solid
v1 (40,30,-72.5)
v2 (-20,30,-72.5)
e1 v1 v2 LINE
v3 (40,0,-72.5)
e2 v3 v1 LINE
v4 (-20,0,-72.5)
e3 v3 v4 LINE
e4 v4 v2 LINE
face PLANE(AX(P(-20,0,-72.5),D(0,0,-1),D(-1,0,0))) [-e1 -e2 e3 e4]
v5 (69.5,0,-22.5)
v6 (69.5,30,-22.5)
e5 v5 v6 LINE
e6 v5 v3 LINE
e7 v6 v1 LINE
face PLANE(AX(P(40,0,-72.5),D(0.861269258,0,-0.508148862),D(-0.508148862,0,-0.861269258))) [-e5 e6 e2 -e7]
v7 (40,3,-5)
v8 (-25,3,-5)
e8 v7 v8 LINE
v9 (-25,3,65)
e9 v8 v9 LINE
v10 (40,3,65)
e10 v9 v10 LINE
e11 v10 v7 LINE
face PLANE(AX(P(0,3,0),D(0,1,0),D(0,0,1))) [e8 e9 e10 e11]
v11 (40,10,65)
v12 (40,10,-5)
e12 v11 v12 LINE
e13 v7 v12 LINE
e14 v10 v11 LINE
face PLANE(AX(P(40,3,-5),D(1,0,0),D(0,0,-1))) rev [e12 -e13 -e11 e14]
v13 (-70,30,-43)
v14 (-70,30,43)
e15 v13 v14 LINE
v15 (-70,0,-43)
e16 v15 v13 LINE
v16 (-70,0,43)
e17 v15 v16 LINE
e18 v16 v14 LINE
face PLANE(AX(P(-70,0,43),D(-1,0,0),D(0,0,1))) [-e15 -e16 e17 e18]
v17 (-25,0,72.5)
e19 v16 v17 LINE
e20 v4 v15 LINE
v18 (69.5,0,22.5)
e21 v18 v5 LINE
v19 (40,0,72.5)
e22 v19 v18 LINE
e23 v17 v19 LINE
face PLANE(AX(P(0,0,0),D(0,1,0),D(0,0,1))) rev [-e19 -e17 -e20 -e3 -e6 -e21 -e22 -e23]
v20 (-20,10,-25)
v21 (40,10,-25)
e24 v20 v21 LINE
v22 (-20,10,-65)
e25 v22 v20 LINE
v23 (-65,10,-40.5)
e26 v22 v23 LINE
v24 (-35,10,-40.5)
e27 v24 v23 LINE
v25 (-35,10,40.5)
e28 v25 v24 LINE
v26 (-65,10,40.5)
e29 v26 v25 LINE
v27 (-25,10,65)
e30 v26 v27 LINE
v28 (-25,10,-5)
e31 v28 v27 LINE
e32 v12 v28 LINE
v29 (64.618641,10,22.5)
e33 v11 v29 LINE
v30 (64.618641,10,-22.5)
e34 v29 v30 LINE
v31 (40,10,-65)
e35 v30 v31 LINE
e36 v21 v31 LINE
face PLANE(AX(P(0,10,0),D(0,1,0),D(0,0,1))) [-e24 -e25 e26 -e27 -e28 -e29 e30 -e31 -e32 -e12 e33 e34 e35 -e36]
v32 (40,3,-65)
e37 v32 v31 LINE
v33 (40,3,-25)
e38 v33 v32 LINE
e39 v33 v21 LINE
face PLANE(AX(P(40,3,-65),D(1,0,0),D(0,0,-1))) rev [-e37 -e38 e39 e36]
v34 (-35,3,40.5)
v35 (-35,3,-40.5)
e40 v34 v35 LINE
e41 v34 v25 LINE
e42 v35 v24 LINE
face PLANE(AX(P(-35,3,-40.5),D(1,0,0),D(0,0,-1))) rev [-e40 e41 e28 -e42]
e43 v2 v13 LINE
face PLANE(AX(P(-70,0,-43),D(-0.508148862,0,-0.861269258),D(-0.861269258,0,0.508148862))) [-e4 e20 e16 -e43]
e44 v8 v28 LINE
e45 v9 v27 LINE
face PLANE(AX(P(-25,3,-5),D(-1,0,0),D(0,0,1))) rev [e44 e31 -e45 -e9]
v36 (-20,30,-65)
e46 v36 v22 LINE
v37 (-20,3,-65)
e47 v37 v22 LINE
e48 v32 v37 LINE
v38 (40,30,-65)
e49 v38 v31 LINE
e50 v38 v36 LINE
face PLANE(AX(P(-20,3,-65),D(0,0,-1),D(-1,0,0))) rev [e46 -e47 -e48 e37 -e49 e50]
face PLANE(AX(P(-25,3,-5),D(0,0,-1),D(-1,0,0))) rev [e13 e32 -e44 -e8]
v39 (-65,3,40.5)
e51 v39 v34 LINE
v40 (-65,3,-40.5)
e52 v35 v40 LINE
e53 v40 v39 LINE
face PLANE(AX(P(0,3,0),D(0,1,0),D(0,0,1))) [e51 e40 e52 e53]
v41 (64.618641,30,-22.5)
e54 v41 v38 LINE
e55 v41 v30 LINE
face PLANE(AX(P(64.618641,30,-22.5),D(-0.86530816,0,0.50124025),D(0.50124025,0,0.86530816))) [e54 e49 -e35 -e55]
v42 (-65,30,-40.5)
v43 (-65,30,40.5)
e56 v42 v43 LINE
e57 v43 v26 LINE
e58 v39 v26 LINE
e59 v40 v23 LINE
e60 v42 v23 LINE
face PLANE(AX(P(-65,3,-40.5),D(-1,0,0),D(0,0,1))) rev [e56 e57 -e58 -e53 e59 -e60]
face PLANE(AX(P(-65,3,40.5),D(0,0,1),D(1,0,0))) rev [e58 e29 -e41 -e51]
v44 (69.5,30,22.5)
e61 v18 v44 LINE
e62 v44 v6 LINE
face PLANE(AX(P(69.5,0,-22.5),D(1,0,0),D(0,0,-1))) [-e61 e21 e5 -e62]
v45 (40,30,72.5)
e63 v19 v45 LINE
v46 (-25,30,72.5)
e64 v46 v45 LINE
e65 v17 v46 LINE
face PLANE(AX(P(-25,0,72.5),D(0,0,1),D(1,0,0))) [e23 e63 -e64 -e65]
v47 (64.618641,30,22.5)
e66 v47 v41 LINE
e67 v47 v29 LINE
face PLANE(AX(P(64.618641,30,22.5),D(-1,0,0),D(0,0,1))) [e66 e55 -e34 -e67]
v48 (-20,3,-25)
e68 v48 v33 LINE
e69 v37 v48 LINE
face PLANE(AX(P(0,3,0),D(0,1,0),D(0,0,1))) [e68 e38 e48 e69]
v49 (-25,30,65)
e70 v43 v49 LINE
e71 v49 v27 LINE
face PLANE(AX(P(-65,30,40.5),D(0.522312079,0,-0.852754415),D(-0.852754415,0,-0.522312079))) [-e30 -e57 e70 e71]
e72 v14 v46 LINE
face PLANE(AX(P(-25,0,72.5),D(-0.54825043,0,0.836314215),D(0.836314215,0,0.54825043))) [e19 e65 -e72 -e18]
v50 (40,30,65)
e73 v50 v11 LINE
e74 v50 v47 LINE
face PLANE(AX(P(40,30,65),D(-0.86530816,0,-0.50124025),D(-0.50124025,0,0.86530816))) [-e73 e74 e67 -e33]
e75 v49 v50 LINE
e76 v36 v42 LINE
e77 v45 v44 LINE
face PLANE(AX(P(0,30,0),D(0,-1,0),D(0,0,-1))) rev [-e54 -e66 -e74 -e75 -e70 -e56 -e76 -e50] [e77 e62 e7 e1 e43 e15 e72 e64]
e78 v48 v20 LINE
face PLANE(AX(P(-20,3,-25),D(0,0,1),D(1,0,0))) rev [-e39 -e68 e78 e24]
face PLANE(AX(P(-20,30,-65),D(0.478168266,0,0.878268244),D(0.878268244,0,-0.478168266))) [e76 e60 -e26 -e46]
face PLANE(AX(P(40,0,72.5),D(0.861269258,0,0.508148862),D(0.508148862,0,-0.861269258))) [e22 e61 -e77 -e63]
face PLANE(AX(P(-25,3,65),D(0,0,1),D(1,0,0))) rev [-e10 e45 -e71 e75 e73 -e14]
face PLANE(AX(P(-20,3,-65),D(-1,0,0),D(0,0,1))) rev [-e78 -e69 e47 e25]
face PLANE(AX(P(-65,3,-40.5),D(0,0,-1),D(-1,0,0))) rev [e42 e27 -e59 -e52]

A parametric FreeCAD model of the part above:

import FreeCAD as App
import Part
import Sketcher

V = App.Vector
Q = App.Units.Quantity


def add_polygon(sketch, points):
    """Adds a closed chain of lines whose ends are joined by coincident constraints."""
    first, n = sketch.GeometryCount, len(points)
    for a, b in zip(points, points[1:] + points[:1]):
        sketch.addGeometry(Part.LineSegment(App.Vector(*a, 0), App.Vector(*b, 0)), False)
    for i in range(n):
        sketch.addConstraint(Sketcher.Constraint("Coincident", first + i, 2, first + (i + 1) % n, 1))

doc = App.newDocument("Part")
body = doc.addObject("PartDesign::Body", "Body")

# Sketch on XZ plane
sketch1 = body.newObject("Sketcher::SketchObject", "Sketch")
sketch1.AttachmentSupport = (doc.getObject("XZ_Plane"), [""])
sketch1.MapMode = "FlatFace"
sketch1.addGeometry(Part.Circle(V(0, 0, 0), V(0, 0, 1), 85), False)
sketch1.addConstraint([
    Sketcher.Constraint("Coincident", 0, 3, -1, 1),
    Sketcher.Constraint("Diameter", 0, Q("170 mm")),
])
pad1 = body.newObject("PartDesign::Pad", "Pad")
pad1.Profile = sketch1
pad1.Length = 10
pad1.Reversed = True

# Sketch on XZ plane
sketch2 = body.newObject("Sketcher::SketchObject", "Sketch001")
sketch2.AttachmentSupport = (doc.getObject("XZ_Plane"), [""])
sketch2.MapMode = "FlatFace"
sketch2.AttachmentOffset = App.Placement(V(0, 0, -10), App.Rotation())
add_polygon(sketch2, [(-65, -40), (-65, 40), (-35, 40), (-35, -40)])  # lines 0-3
add_polygon(sketch2, [(-20, -65), (-20, -25), (40, -25), (40, -65)])  # lines 4-7
add_polygon(sketch2, [(-25, -5), (-25, 65), (40, 65), (40, -5)])  # lines 8-11
sketch2.addConstraint([
    Sketcher.Constraint("Vertical", 0),
    Sketcher.Constraint("Horizontal", 1),
    Sketcher.Constraint("Vertical", 2),
    Sketcher.Constraint("Horizontal", 3),
    Sketcher.Constraint("Vertical", 4),
    Sketcher.Constraint("Horizontal", 5),
    Sketcher.Constraint("Vertical", 6),
    Sketcher.Constraint("Horizontal", 7),
    Sketcher.Constraint("Vertical", 8),
    Sketcher.Constraint("Horizontal", 9),
    Sketcher.Constraint("Vertical", 10),
    Sketcher.Constraint("Horizontal", 11),
    Sketcher.Constraint("Symmetric", 6, 2, 9, 2, -1),
    Sketcher.Constraint("DistanceX", 1, 1, 1, 2, Q("30 mm")),
    Sketcher.Constraint("DistanceX", 5, 1, 5, 2, Q("60 mm")),
    Sketcher.Constraint("DistanceX", 9, 1, 9, 2, Q("65 mm")),
    Sketcher.Constraint("DistanceY", 0, 1, 0, 2, Q("81 mm")),
    Sketcher.Constraint("DistanceY", 4, 1, 4, 2, Q("40 mm")),
    Sketcher.Constraint("DistanceY", 8, 1, 8, 2, Q("70 mm")),
    Sketcher.Constraint("DistanceX", 0, 2, -1, 1, Q("65 mm")),
    Sketcher.Constraint("DistanceX", 4, 2, -1, 1, Q("20 mm")),
    Sketcher.Constraint("DistanceY", 4, 2, -1, 1, Q("25 mm")),
    Sketcher.Constraint("DistanceY", -1, 1, 0, 2, Q("40.5 mm")),
])
pocket1 = body.newObject("PartDesign::Pocket", "Pocket")
pocket1.Profile = sketch2
pocket1.Length = 7
pocket1.Reversed = True

# Sketch on XZ plane
sketch3 = body.newObject("Sketcher::SketchObject", "Sketch002")
sketch3.AttachmentSupport = (doc.getObject("XZ_Plane"), [""])
sketch3.MapMode = "FlatFace"
sketch3.AttachmentOffset = App.Placement(V(0, 0, -10), App.Rotation())
add_polygon(sketch3, [(-99, -92), (-99, 92), (96, 92), (96, -92)])  # lines 0-3
add_polygon(sketch3, [(-70, 43), (-70, -43), (-20, -72), (40, -72), (70, -22), (70, 22), (40, 72), (-25, 72)])  # lines 4-11
sketch3.addConstraint([
    Sketcher.Constraint("Vertical", 0),
    Sketcher.Constraint("Horizontal", 1),
    Sketcher.Constraint("Vertical", 2),
    Sketcher.Constraint("Horizontal", 3),
    Sketcher.Constraint("Vertical", 4),
    Sketcher.Constraint("Horizontal", 6),
    Sketcher.Constraint("Vertical", 8),
    Sketcher.Constraint("Horizontal", 10),
    Sketcher.Constraint("Symmetric", 6, 2, 9, 2, -1),
    Sketcher.Constraint("Perpendicular", 5, 7),
    Sketcher.Constraint("Equal", 5, 7),
    Sketcher.Constraint("Equal", 7, 9),
    Sketcher.Constraint("DistanceX", 6, 1, 6, 2, Q("60 mm")),
    Sketcher.Constraint("DistanceX", 10, 2, 10, 1, Q("65 mm")),
    Sketcher.Constraint("DistanceY", 4, 2, 4, 1, Q("86 mm")),
    Sketcher.Constraint("DistanceY", 8, 1, 8, 2, Q("45 mm")),
    Sketcher.Constraint("DistanceX", 4, 2, -1, 1, Q("70 mm")),
    Sketcher.Constraint("DistanceY", 4, 2, -1, 1, Q("43 mm")),
    Sketcher.Constraint("DistanceX", 5, 2, -1, 1, Q("20 mm")),
    Sketcher.Constraint("DistanceX", 1, 1, 1, 2, Q("194.063046 mm")),
    Sketcher.Constraint("DistanceY", 0, 1, 0, 2, Q("184.494194 mm")),
    Sketcher.Constraint("DistanceX", -1, 1, 1, 2, Q("95.520652 mm")),
    Sketcher.Constraint("DistanceY", 2, 2, -1, 1, Q("92.16316 mm")),
])
pocket2 = body.newObject("PartDesign::Pocket", "Pocket001")
pocket2.Profile = sketch3
pocket2.Length = 10
pocket2.Reversed = True

# Sketch on XZ plane
sketch4 = body.newObject("Sketcher::SketchObject", "Sketch003")
sketch4.AttachmentSupport = (doc.getObject("XZ_Plane"), [""])
sketch4.MapMode = "FlatFace"
sketch4.AttachmentOffset = App.Placement(V(0, 0, -10), App.Rotation())
add_polygon(sketch4, [(-20, -72), (-70, -43), (-70, 43), (-25, 72), (40, 72), (70, 22), (70, -22), (40, -72)])  # lines 0-7
add_polygon(sketch4, [(-65, -40), (-20, -65), (40, -65), (65, -22), (65, 22), (40, 65), (-25, 65), (-65, 40)])  # lines 8-15
sketch4.addConstraint([
    Sketcher.Constraint("Vertical", 1),
    Sketcher.Constraint("Horizontal", 3),
    Sketcher.Constraint("Vertical", 5),
    Sketcher.Constraint("Horizontal", 7),
    Sketcher.Constraint("Horizontal", 9),
    Sketcher.Constraint("Vertical", 11),
    Sketcher.Constraint("Horizontal", 13),
    Sketcher.Constraint("Vertical", 15),
    Sketcher.Constraint("Symmetric", 3, 2, 6, 2, -1),
    Sketcher.Constraint("Symmetric", 9, 2, 12, 2, -1),
    Sketcher.Constraint("Perpendicular", 0, 6),
    Sketcher.Constraint("Horizontal", 5, 2, 10, 2),
    Sketcher.Constraint("Horizontal", 4, 2, 11, 2),
    Sketcher.Constraint("Vertical", 7, 2, 8, 2),
    Sketcher.Constraint("Vertical", 6, 2, 9, 2),
    Sketcher.Constraint("Vertical", 2, 2, 13, 2),
    Sketcher.Constraint("Equal", 0, 4),
    Sketcher.Constraint("Equal", 4, 6),
    Sketcher.Constraint("DistanceX", 3, 1, 3, 2, Q("65 mm")),
    Sketcher.Constraint("DistanceX", 7, 2, 7, 1, Q("60 mm")),
    Sketcher.Constraint("DistanceY", 1, 1, 1, 2, Q("86 mm")),
    Sketcher.Constraint("DistanceY", 5, 2, 5, 1, Q("45 mm")),
    Sketcher.Constraint("DistanceY", 15, 2, 15, 1, Q("81 mm")),
    Sketcher.Constraint("DistanceX", 0, 2, -1, 1, Q("70 mm")),
    Sketcher.Constraint("DistanceY", 0, 2, -1, 1, Q("43 mm")),
    Sketcher.Constraint("DistanceX", 2, 2, -1, 1, Q("25 mm")),
    Sketcher.Constraint("DistanceY", 8, 2, -1, 1, Q("65 mm")),
    Sketcher.Constraint("DistanceX", 14, 2, -1, 1, Q("65 mm")),
    Sketcher.Constraint("DistanceY", 14, 2, 2, 2, Q("32 mm")),
    Sketcher.Constraint("Distance", 10, Q("49.11545 mm")),
])
pad2 = body.newObject("PartDesign::Pad", "Pad001")
pad2.Profile = sketch4
pad2.Length = 20
pad2.Reversed = True

doc.recompute()
